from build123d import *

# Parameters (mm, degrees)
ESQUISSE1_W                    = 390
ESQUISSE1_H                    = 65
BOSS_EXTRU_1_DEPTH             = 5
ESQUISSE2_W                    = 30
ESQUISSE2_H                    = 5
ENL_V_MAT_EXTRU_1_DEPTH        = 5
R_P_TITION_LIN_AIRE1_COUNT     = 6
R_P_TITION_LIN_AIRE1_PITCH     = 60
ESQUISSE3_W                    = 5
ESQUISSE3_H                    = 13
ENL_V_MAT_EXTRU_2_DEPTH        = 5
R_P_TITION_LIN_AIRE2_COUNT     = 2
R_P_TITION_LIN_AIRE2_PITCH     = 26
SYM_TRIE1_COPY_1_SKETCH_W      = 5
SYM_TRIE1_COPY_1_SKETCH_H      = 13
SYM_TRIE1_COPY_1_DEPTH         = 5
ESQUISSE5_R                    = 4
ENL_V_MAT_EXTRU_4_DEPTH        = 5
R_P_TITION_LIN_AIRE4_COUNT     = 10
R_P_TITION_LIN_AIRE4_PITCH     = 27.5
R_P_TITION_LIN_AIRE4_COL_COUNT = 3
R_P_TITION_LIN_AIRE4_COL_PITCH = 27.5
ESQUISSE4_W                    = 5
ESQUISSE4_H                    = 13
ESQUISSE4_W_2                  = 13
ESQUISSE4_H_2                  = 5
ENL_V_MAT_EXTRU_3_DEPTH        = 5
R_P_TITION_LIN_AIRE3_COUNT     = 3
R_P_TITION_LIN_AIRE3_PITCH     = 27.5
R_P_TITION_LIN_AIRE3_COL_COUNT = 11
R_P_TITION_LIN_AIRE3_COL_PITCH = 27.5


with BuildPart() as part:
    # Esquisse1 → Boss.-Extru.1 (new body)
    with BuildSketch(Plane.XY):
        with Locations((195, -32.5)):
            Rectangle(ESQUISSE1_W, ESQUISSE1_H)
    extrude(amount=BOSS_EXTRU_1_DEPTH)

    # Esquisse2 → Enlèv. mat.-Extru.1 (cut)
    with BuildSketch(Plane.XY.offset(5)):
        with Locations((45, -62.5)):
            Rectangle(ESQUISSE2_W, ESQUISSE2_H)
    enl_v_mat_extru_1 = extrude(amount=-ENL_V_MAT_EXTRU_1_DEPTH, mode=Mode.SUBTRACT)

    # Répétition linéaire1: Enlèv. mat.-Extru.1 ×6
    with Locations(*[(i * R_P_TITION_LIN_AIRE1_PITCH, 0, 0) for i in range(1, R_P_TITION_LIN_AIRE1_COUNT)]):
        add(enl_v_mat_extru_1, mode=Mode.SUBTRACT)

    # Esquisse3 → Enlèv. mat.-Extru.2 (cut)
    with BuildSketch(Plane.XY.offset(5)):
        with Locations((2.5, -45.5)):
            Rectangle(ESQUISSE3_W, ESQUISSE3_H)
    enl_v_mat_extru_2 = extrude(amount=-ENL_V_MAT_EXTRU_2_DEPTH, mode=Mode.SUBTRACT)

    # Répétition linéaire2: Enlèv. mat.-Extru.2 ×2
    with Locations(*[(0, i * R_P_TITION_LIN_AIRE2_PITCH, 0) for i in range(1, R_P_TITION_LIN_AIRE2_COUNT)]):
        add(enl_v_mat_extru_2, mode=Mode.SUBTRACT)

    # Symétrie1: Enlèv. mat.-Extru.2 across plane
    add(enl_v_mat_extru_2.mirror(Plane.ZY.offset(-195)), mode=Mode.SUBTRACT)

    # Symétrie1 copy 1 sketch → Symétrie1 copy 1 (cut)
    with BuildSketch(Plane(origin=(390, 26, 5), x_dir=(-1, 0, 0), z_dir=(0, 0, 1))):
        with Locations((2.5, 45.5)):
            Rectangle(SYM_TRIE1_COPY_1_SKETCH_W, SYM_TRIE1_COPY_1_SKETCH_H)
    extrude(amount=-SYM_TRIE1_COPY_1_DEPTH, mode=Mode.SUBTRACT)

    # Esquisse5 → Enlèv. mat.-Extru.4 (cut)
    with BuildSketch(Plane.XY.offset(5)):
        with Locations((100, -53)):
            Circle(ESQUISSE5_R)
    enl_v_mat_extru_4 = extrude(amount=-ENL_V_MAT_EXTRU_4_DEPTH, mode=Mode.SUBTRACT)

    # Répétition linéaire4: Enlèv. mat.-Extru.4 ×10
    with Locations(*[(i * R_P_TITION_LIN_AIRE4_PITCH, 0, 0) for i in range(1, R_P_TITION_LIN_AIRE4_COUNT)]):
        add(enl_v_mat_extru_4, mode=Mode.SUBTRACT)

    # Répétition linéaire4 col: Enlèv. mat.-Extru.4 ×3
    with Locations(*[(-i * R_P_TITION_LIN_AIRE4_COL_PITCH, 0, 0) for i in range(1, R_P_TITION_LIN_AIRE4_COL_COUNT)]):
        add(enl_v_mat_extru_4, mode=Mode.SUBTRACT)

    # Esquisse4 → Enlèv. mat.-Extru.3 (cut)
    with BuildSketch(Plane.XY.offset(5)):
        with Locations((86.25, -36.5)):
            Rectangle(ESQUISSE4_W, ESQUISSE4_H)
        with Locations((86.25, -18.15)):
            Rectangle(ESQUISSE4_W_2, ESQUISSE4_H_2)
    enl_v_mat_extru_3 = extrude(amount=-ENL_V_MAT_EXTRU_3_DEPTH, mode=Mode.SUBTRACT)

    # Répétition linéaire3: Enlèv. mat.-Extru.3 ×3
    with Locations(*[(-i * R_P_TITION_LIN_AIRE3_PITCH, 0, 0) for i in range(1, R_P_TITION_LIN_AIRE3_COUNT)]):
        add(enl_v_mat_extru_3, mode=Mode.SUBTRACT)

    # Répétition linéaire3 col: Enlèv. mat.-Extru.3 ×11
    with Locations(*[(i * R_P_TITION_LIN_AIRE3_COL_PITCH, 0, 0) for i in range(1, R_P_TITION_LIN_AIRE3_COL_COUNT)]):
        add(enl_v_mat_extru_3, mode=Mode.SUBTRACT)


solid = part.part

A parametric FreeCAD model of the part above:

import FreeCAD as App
import Part
import Sketcher
Q = App.Units.Quantity


def add_polygon(sketch, points):
    """Adds a closed chain of lines whose ends are joined by coincident constraints."""
    first, n = sketch.GeometryCount, len(points)
    for a, b in zip(points, points[1:] + points[:1]):
        sketch.addGeometry(Part.LineSegment(App.Vector(*a, 0), App.Vector(*b, 0)), False)
    for i in range(n):
        sketch.addConstraint(Sketcher.Constraint("Coincident", first + i, 2, first + (i + 1) % n, 1))

doc = App.newDocument("Part")
body = doc.addObject("PartDesign::Body", "Body")

# Sketch on XY plane
sketch1 = doc.addObject("Sketcher::SketchObject", "Sketch")
body.addObject(sketch1)
sketch1.AttachmentSupport = (doc.XY_Plane, [""])
sketch1.MapMode = "FlatFace"
add_polygon(sketch1, [(0, 0), (0, -65), (390, -65), (390, 0)])  # lines 0-3
sketch1.addConstraint([
    Sketcher.Constraint("Vertical", 0),
    Sketcher.Constraint("Horizontal", 1),
    Sketcher.Constraint("Vertical", 2),
    Sketcher.Constraint("Horizontal", 3),
    Sketcher.Constraint("Coincident", 3, 2, -1, 1),
    Sketcher.Constraint("DistanceX", 1, 1, 1, 2, Q("390 mm")),
    Sketcher.Constraint("DistanceY", 0, 2, 0, 1, Q("65 mm")),
])
pad1 = doc.addObject("PartDesign::Pad", "Pad")
body.addObject(pad1)
pad1.Profile = sketch1
pad1.Length = 5

# Sketch on XY plane
sketch2 = doc.addObject("Sketcher::SketchObject", "Sketch001")
body.addObject(sketch2)
sketch2.AttachmentSupport = (doc.XY_Plane, [""])
sketch2.MapMode = "FlatFace"
sketch2.AttachmentOffset = App.Placement(App.Vector(0, 0, 5), App.Rotation())
add_polygon(sketch2, [(30, -60), (30, -65), (60, -65), (60, -60)])  # lines 0-3
sketch2.addConstraint([
    Sketcher.Constraint("Vertical", 0),
    Sketcher.Constraint("Horizontal", 1),
    Sketcher.Constraint("Vertical", 2),
    Sketcher.Constraint("Horizontal", 3),
    Sketcher.Constraint("DistanceX", 1, 1, 1, 2, Q("30 mm")),
    Sketcher.Constraint("DistanceY", 0, 2, 0, 1, Q("5 mm")),
    Sketcher.Constraint("DistanceX", -1, 1, 0, 2, Q("30 mm")),
    Sketcher.Constraint("DistanceY", 0, 2, -1, 1, Q("65 mm")),
])
pocket1 = doc.addObject("PartDesign::Pocket", "Pocket")
body.addObject(pocket1)
pocket1.Profile = sketch2
pocket1.Length = 5
doc.recompute()

linearpattern = doc.addObject("PartDesign::LinearPattern", "LinearPattern")
body.addObject(linearpattern)
linearpattern.Originals = [pocket1]
linearpattern.Direction = (doc.X_Axis, [""])
linearpattern.Mode = "offset"
linearpattern.Offset = 60
linearpattern.Occurrences = 6
body.Tip = linearpattern

# Sketch on XY plane
sketch3 = doc.addObject("Sketcher::SketchObject", "Sketch002")
body.addObject(sketch3)
sketch3.AttachmentSupport = (doc.XY_Plane, [""])
sketch3.MapMode = "FlatFace"
sketch3.AttachmentOffset = App.Placement(App.Vector(0, 0, 5), App.Rotation())
add_polygon(sketch3, [(0, -39), (0, -52), (5, -52), (5, -39)])  # lines 0-3
sketch3.addConstraint([
    Sketcher.Constraint("Vertical", 0),
    Sketcher.Constraint("Horizontal", 1),
    Sketcher.Constraint("Vertical", 2),
    Sketcher.Constraint("Horizontal", 3),
    Sketcher.Constraint("PointOnObject", 0, 2, -2),
    Sketcher.Constraint("DistanceX", 1, 1, 1, 2, Q("5 mm")),
    Sketcher.Constraint("DistanceY", 0, 2, 0, 1, Q("13 mm")),
    Sketcher.Constraint("DistanceY", 0, 2, -1, 1, Q("52 mm")),
])
pocket2 = doc.addObject("PartDesign::Pocket", "Pocket001")
body.addObject(pocket2)
pocket2.Profile = sketch3
pocket2.Length = 5
doc.recompute()

linearpattern2 = doc.addObject("PartDesign::LinearPattern", "LinearPattern001")
body.addObject(linearpattern2)
linearpattern2.Originals = [pocket2]
linearpattern2.Direction = (doc.Y_Axis, [""])
linearpattern2.Mode = "offset"
linearpattern2.Offset = 26
linearpattern2.Occurrences = 2
body.Tip = linearpattern2
doc.recompute()

datumplane = doc.addObject("PartDesign::Plane", "DatumPlane")
body.addObject(datumplane)
datumplane.AttachmentSupport = (doc.YZ_Plane, [""])
datumplane.MapMode = "FlatFace"
datumplane.AttachmentOffset = App.Placement(App.Vector(0, 0, 195), App.Rotation())
mirrored = doc.addObject("PartDesign::Mirrored", "Mirrored")
body.addObject(mirrored)
mirrored.Originals = [pocket2]
mirrored.MirrorPlane = (datumplane, [""])
body.Tip = mirrored

# Sketch on XY plane
sketch4 = doc.addObject("Sketcher::SketchObject", "Sketch003")
body.addObject(sketch4)
sketch4.AttachmentSupport = (doc.XY_Plane, [""])
sketch4.MapMode = "FlatFace"
sketch4.AttachmentOffset = App.Placement(App.Vector(0, 0, 5), App.Rotation())
add_polygon(sketch4, [(390, -26), (390, -13), (385, -13), (385, -26)])  # lines 0-3
sketch4.addConstraint([
    Sketcher.Constraint("Vertical", 0),
    Sketcher.Constraint("Horizontal", 1),
    Sketcher.Constraint("Vertical", 2),
    Sketcher.Constraint("Horizontal", 3),
    Sketcher.Constraint("DistanceX", 1, 2, 1, 1, Q("5 mm")),
    Sketcher.Constraint("DistanceY", 0, 1, 0, 2, Q("13 mm")),
    Sketcher.Constraint("DistanceX", -1, 1, 0, 2, Q("390 mm")),
    Sketcher.Constraint("DistanceY", 0, 2, -1, 1, Q("13 mm")),
])
pocket3 = doc.addObject("PartDesign::Pocket", "Pocket002")
body.addObject(pocket3)
pocket3.Profile = sketch4
pocket3.Length = 5

# Sketch on XY plane
sketch5 = doc.addObject("Sketcher::SketchObject", "Sketch004")
body.addObject(sketch5)
sketch5.AttachmentSupport = (doc.XY_Plane, [""])
sketch5.MapMode = "FlatFace"
sketch5.AttachmentOffset = App.Placement(App.Vector(0, 0, 5), App.Rotation())
sketch5.addGeometry(Part.Circle(App.Vector(100, -53, 0), App.Vector(0, 0, 1), 4), False)
sketch5.addConstraint([
    Sketcher.Constraint("Diameter", 0, Q("8 mm")),
    Sketcher.Constraint("DistanceX", -1, 1, 0, 3, Q("100 mm")),
    Sketcher.Constraint("DistanceY", 0, 3, -1, 1, Q("53 mm")),
])
pocket4 = doc.addObject("PartDesign::Pocket", "Pocket003")
body.addObject(pocket4)
pocket4.Profile = sketch5
pocket4.Length = 5
doc.recompute()

linearpattern3 = doc.addObject("PartDesign::LinearPattern", "LinearPattern002")
body.addObject(linearpattern3)
linearpattern3.Originals = [pocket4]
linearpattern3.Direction = (doc.X_Axis, [""])
linearpattern3.Mode = "offset"
linearpattern3.Offset = 27.5
linearpattern3.Occurrences = 10
body.Tip = linearpattern3
doc.recompute()

linearpattern4 = doc.addObject("PartDesign::LinearPattern", "LinearPattern003")
body.addObject(linearpattern4)
linearpattern4.Originals = [pocket4]
linearpattern4.Direction = (doc.X_Axis, [""])
linearpattern4.Mode = "offset"
linearpattern4.Offset = 27.5
linearpattern4.Occurrences = 3
linearpattern4.Reversed = True
body.Tip = linearpattern4

# Sketch on XY plane
sketch6 = doc.addObject("Sketcher::SketchObject", "Sketch005")
body.addObject(sketch6)
sketch6.AttachmentSupport = (doc.XY_Plane, [""])
sketch6.MapMode = "FlatFace"
sketch6.AttachmentOffset = App.Placement(App.Vector(0, 0, 5), App.Rotation())
add_polygon(sketch6, [(83.8, -30), (83.8, -43), (88.8, -43), (88.8, -30)])  # lines 0-3
add_polygon(sketch6, [(79.8, -15.7), (79.8, -20.6), (92.8, -20.6), (92.8, -15.7)])  # lines 4-7
sketch6.addConstraint([
    Sketcher.Constraint("Vertical", 0),
    Sketcher.Constraint("Horizontal", 1),
    Sketcher.Constraint("Vertical", 2),
    Sketcher.Constraint("Horizontal", 3),
    Sketcher.Constraint("Vertical", 4),
    Sketcher.Constraint("Horizontal", 5),
    Sketcher.Constraint("Vertical", 6),
    Sketcher.Constraint("Horizontal", 7),
    Sketcher.Constraint("Equal", 7, 0),
    Sketcher.Constraint("Equal", 3, 4),
    Sketcher.Constraint("DistanceX", 1, 1, 1, 2, Q("5 mm")),
    Sketcher.Constraint("DistanceX", 5, 1, 5, 2, Q("13 mm")),
    Sketcher.Constraint("DistanceY", 0, 2, -1, 1, Q("43 mm")),
    Sketcher.Constraint("DistanceX", 4, 2, 3, 2, Q("4 mm")),
    Sketcher.Constraint("DistanceX", -1, 1, 0, 2, Q("83.75 mm")),
    Sketcher.Constraint("DistanceY", 4, 2, -1, 1, Q("20.65 mm")),
])
pocket5 = doc.addObject("PartDesign::Pocket", "Pocket004")
body.addObject(pocket5)
pocket5.Profile = sketch6
pocket5.Length = 5
doc.recompute()

linearpattern5 = doc.addObject("PartDesign::LinearPattern", "LinearPattern004")
body.addObject(linearpattern5)
linearpattern5.Originals = [pocket5]
linearpattern5.Direction = (doc.X_Axis, [""])
linearpattern5.Mode = "offset"
linearpattern5.Offset = 27.5
linearpattern5.Occurrences = 3
linearpattern5.Reversed = True
body.Tip = linearpattern5
doc.recompute()

linearpattern6 = doc.addObject("PartDesign::LinearPattern", "LinearPattern005")
body.addObject(linearpattern6)
linearpattern6.Originals = [pocket5]
linearpattern6.Direction = (doc.X_Axis, [""])
linearpattern6.Mode = "offset"
linearpattern6.Offset = 27.5
linearpattern6.Occurrences = 11
body.Tip = linearpattern6

doc.recompute()
